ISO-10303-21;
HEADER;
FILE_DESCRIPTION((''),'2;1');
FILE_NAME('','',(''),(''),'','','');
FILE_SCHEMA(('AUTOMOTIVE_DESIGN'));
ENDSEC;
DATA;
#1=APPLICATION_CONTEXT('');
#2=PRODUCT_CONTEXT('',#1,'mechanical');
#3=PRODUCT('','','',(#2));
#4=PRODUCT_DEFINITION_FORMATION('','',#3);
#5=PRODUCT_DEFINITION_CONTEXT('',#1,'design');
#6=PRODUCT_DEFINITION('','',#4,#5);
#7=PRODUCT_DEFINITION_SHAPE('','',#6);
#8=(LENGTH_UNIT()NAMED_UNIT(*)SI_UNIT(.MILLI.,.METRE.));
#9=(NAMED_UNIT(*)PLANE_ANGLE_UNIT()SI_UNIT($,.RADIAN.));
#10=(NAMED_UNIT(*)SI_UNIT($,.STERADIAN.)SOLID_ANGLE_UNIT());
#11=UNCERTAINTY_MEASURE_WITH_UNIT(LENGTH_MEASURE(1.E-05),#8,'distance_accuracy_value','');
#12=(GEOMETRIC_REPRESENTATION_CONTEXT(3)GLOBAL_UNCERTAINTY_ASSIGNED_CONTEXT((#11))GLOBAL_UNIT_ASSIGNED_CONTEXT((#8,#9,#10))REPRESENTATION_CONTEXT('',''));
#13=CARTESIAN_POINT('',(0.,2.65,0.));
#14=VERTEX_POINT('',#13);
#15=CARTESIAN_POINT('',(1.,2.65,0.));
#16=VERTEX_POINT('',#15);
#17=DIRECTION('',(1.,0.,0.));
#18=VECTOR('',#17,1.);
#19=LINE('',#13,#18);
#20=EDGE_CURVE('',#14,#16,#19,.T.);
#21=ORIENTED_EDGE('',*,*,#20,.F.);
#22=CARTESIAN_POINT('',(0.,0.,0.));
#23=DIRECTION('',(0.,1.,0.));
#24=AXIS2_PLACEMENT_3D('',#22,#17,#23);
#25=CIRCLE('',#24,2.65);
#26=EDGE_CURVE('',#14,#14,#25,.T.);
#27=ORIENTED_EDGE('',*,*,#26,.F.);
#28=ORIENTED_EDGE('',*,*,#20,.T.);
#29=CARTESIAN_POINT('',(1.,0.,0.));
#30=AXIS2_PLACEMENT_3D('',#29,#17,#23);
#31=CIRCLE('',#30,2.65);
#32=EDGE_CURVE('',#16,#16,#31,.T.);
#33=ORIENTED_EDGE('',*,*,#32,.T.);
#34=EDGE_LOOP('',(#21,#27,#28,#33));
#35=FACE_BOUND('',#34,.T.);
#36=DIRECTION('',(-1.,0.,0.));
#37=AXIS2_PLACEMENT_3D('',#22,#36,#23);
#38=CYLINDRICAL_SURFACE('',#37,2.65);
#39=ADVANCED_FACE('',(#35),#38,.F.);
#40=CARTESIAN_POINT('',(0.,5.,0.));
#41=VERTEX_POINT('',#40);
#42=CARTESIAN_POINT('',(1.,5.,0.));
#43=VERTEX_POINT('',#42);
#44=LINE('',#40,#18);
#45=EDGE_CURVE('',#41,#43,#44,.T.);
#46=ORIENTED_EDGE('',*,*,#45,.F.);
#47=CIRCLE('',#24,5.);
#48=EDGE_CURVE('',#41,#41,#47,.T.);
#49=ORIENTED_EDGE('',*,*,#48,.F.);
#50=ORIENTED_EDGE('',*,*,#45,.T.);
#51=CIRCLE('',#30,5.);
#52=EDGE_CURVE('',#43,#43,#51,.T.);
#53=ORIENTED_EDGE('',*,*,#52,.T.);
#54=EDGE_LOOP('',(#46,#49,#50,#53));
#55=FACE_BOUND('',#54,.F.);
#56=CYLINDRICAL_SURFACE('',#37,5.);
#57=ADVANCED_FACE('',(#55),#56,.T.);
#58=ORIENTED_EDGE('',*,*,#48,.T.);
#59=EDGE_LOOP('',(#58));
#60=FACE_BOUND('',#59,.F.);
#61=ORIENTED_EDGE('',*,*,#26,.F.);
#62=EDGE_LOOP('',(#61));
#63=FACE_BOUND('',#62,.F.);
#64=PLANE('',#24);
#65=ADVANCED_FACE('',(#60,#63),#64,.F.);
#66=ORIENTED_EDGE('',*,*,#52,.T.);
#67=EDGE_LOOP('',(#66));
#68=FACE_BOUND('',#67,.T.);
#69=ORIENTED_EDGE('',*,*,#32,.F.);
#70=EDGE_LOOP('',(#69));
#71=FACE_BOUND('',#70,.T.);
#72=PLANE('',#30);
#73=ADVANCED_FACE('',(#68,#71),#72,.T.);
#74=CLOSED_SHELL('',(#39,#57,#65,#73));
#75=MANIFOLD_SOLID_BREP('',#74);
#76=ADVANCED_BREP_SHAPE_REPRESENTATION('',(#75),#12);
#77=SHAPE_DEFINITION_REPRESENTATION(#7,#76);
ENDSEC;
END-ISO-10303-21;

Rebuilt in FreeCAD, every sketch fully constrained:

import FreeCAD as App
import Part
import Sketcher

V = App.Vector

doc = App.newDocument("Part")
body = doc.addObject("PartDesign::Body", "Body")

sketch1 = body.newObject("Sketcher::SketchObject", "Sketch")
sketch1.AttachmentSupport = (doc.getObject("YZ_Plane"), [""])
sketch1.MapMode = "FlatFace"
sketch1.addGeometry(Part.Circle(V(0, 0, 0), V(0, 0, 1), 5), False)
sketch1.addGeometry(Part.Circle(V(0, 0, 0), V(0, 0, 1), 2.65), False)
sketch1.addConstraint(Sketcher.Constraint("Coincident", 0, 3, -1, 1))
sketch1.addConstraint(Sketcher.Constraint("Coincident", 1, 3, -1, 1))
sketch1.addConstraint(Sketcher.Constraint("Diameter", 0, 10.0))
sketch1.addConstraint(Sketcher.Constraint("Diameter", 1, 5.3))
pad1 = body.newObject("PartDesign::Pad", "Pad")
pad1.Profile = sketch1
pad1.Length = 1

doc.recompute()
